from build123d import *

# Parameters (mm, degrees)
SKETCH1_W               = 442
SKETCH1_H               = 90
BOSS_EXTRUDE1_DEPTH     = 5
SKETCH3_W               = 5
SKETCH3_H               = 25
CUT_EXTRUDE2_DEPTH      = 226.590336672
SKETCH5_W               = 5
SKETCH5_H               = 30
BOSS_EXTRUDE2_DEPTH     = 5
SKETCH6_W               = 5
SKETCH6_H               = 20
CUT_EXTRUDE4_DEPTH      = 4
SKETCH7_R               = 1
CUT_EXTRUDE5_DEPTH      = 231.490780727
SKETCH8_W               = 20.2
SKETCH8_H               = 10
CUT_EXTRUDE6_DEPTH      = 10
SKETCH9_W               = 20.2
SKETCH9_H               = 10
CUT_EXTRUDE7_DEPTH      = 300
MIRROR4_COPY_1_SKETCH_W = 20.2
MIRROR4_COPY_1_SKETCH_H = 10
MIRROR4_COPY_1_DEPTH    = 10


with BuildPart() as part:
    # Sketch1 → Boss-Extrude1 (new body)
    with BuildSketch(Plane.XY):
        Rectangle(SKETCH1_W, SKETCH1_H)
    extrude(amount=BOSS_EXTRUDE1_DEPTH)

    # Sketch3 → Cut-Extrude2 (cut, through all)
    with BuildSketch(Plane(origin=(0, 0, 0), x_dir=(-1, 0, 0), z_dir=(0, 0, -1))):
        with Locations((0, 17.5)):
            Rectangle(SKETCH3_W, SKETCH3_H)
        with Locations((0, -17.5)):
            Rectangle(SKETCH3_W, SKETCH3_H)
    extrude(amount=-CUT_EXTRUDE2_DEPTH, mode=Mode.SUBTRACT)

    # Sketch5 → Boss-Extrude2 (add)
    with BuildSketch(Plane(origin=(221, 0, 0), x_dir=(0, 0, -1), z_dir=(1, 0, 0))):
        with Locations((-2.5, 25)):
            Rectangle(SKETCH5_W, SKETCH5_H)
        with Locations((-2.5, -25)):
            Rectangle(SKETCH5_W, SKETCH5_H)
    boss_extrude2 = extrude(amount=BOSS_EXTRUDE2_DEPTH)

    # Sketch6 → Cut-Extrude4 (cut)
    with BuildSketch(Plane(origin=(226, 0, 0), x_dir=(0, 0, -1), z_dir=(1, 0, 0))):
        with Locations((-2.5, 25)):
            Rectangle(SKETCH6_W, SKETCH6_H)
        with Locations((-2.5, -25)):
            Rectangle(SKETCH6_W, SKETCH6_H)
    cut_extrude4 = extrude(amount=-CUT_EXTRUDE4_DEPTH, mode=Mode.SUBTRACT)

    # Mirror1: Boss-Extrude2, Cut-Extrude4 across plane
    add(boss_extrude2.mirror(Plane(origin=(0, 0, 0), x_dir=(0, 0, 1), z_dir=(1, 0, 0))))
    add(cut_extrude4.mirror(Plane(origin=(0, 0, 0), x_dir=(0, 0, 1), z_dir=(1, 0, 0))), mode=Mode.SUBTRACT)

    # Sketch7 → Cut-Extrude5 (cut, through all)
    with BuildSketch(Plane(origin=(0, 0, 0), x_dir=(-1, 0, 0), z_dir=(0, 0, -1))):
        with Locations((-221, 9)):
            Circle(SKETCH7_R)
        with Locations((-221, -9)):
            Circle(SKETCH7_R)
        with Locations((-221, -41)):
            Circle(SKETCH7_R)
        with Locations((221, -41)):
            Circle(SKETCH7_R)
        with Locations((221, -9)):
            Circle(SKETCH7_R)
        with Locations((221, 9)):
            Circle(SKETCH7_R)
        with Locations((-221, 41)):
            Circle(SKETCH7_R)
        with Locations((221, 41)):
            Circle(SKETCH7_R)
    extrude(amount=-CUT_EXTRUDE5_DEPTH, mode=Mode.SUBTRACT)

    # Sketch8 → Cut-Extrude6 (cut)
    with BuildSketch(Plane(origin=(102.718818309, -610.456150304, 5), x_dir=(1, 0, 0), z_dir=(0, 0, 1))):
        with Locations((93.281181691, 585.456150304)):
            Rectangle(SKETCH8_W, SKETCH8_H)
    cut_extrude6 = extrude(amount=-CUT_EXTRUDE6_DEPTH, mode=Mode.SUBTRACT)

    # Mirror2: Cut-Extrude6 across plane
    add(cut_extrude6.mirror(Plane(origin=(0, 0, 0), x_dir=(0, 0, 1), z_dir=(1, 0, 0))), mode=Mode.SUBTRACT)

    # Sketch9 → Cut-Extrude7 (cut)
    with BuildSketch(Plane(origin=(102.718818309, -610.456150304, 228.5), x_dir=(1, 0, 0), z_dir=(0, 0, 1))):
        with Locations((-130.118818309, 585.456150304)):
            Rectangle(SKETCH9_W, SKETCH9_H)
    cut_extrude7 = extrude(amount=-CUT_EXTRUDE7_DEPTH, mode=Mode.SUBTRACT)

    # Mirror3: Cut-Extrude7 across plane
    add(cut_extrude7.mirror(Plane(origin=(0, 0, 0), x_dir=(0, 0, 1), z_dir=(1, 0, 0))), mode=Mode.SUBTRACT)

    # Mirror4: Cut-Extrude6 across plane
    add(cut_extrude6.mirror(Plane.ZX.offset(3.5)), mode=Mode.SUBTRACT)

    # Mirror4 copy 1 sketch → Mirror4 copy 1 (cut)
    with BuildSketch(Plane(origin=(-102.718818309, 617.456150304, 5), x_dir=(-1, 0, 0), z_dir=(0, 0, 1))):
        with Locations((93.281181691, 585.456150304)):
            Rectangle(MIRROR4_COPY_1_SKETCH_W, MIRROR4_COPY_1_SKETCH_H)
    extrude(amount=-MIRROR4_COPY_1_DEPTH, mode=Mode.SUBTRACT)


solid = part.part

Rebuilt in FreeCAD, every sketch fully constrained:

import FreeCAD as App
import Part
import Sketcher

V = App.Vector


def add_polygon(sketch, points):
    """Adds a closed chain of lines whose ends are joined by coincident constraints."""
    first, n = sketch.GeometryCount, len(points)
    for a, b in zip(points, points[1:] + points[:1]):
        sketch.addGeometry(Part.LineSegment(App.Vector(*a, 0), App.Vector(*b, 0)), False)
    for i in range(n):
        sketch.addConstraint(Sketcher.Constraint("Coincident", first + i, 2, first + (i + 1) % n, 1))

doc = App.newDocument("Part")
body = doc.addObject("PartDesign::Body", "Body")

# Sketch on XY plane
sketch1 = body.newObject("Sketcher::SketchObject", "Sketch")
sketch1.AttachmentSupport = (doc.getObject("XY_Plane"), [""])
sketch1.MapMode = "FlatFace"
add_polygon(sketch1, [(-221, 45), (-221, -45), (221, -45), (221, 45)])  # lines 0-3
sketch1.addConstraint([
    Sketcher.Constraint("Vertical", 0),
    Sketcher.Constraint("Horizontal", 1),
    Sketcher.Constraint("Vertical", 2),
    Sketcher.Constraint("Horizontal", 3),
    Sketcher.Constraint("Symmetric", 0, 2, 2, 2, -1, 1),
    Sketcher.Constraint("DistanceX", 1, 1, 1, 2, 442.0),
    Sketcher.Constraint("DistanceY", 0, 2, 0, 1, 90.0),
])
pad1 = body.newObject("PartDesign::Pad", "Pad")
pad1.Profile = sketch1
pad1.Length = 5

# Sketch on XY plane
sketch2 = body.newObject("Sketcher::SketchObject", "Sketch001")
sketch2.AttachmentSupport = (doc.getObject("XY_Plane"), [""])
sketch2.MapMode = "FlatFace"
add_polygon(sketch2, [(2, 30), (2, 5), (-2, 5), (-2, 30)])  # lines 0-3
add_polygon(sketch2, [(2, -5), (2, -30), (-2, -30), (-2, -5)])  # lines 4-7
sketch2.addConstraint([
    Sketcher.Constraint("Vertical", 0),
    Sketcher.Constraint("Horizontal", 1),
    Sketcher.Constraint("Vertical", 2),
    Sketcher.Constraint("Horizontal", 3),
    Sketcher.Constraint("Vertical", 4),
    Sketcher.Constraint("Horizontal", 5),
    Sketcher.Constraint("Vertical", 6),
    Sketcher.Constraint("Horizontal", 7),
    Sketcher.Constraint("Symmetric", 2, 2, 4, 2, -1, 1),
    Sketcher.Constraint("Symmetric", 0, 2, 6, 2, -1, 1),
    Sketcher.Constraint("Vertical", 3, 2, 4, 2),
    Sketcher.Constraint("DistanceX", 1, 2, 1, 1, 5.0),
    Sketcher.Constraint("DistanceY", 0, 2, 0, 1, 25.0),
    Sketcher.Constraint("DistanceY", -1, 1, 0, 2, 5.0),
])
pocket1 = body.newObject("PartDesign::Pocket", "Pocket")
pocket1.Profile = sketch2
pocket1.Type = "ThroughAll"
pocket1.Reversed = True

# Sketch on YZ plane
sketch3 = body.newObject("Sketcher::SketchObject", "Sketch002")
sketch3.AttachmentSupport = (doc.getObject("YZ_Plane"), [""])
sketch3.MapMode = "FlatFace"
sketch3.AttachmentOffset = App.Placement(V(0, 0, 221), App.Rotation())
add_polygon(sketch3, [(40, 5), (10, 5), (10, 0), (40, 0)])  # lines 0-3
add_polygon(sketch3, [(-10, 5), (-40, 5), (-40, 0), (-10, 0)])  # lines 4-7
sketch3.addConstraint([
    Sketcher.Constraint("Horizontal", 0),
    Sketcher.Constraint("Vertical", 1),
    Sketcher.Constraint("Horizontal", 2),
    Sketcher.Constraint("Vertical", 3),
    Sketcher.Constraint("Horizontal", 4),
    Sketcher.Constraint("Vertical", 5),
    Sketcher.Constraint("Horizontal", 6),
    Sketcher.Constraint("Vertical", 7),
    Sketcher.Constraint("Symmetric", 2, 2, 5, 2, -1, 1),
    Sketcher.Constraint("Symmetric", 1, 2, 6, 2, -2),
    Sketcher.Constraint("Horizontal", 3, 2, 4, 2),
    Sketcher.Constraint("DistanceX", 0, 2, 0, 1, 30.0),
    Sketcher.Constraint("DistanceY", 1, 2, 1, 1, 5.0),
    Sketcher.Constraint("DistanceX", -1, 1, 0, 2, 10.0),
])
pad2 = body.newObject("PartDesign::Pad", "Pad001")
pad2.Profile = sketch3
pad2.Length = 5

# Sketch on YZ plane
sketch4 = body.newObject("Sketcher::SketchObject", "Sketch003")
sketch4.AttachmentSupport = (doc.getObject("YZ_Plane"), [""])
sketch4.MapMode = "FlatFace"
sketch4.AttachmentOffset = App.Placement(V(0, 0, 226), App.Rotation())
add_polygon(sketch4, [(35, 5), (15, 5), (15, 0), (35, 0)])  # lines 0-3
add_polygon(sketch4, [(-15, 5), (-35, 5), (-35, 0), (-15, 0)])  # lines 4-7
sketch4.addConstraint([
    Sketcher.Constraint("Horizontal", 0),
    Sketcher.Constraint("Vertical", 1),
    Sketcher.Constraint("Horizontal", 2),
    Sketcher.Constraint("Vertical", 3),
    Sketcher.Constraint("Horizontal", 4),
    Sketcher.Constraint("Vertical", 5),
    Sketcher.Constraint("Horizontal", 6),
    Sketcher.Constraint("Vertical", 7),
    Sketcher.Constraint("Symmetric", 2, 2, 5, 2, -1, 1),
    Sketcher.Constraint("Symmetric", 1, 2, 6, 2, -2),
    Sketcher.Constraint("Horizontal", 3, 2, 4, 2),
    Sketcher.Constraint("DistanceX", 0, 2, 0, 1, 20.0),
    Sketcher.Constraint("DistanceY", 1, 2, 1, 1, 5.0),
    Sketcher.Constraint("DistanceX", -1, 1, 0, 2, 15.0),
])
pocket2 = body.newObject("PartDesign::Pocket", "Pocket001")
pocket2.Profile = sketch4
pocket2.Length = 4
doc.recompute()

mirrored = body.newObject("PartDesign::Mirrored", "Mirrored")
mirrored.Originals = [pad2, pocket2]
mirrored.MirrorPlane = (doc.getObject("YZ_Plane"), [""])
body.Tip = mirrored

# Sketch on XY plane
sketch5 = body.newObject("Sketcher::SketchObject", "Sketch004")
sketch5.AttachmentSupport = (doc.getObject("XY_Plane"), [""])
sketch5.MapMode = "FlatFace"
sketch5.addGeometry([
    Part.Circle(V(221, 9, 0), V(0, 0, 1), 1),  # 0
    Part.Circle(V(221, -9, 0), V(0, 0, 1), 1),  # 1
    Part.Circle(V(221, -41, 0), V(0, 0, 1), 1),  # 2
    Part.Circle(V(-221, -41, 0), V(0, 0, 1), 1),  # 3
    Part.Circle(V(-221, -9, 0), V(0, 0, 1), 1),  # 4
    Part.Circle(V(-221, 9, 0), V(0, 0, 1), 1),  # 5
    Part.Circle(V(221, 41, 0), V(0, 0, 1), 1),  # 6
    Part.Circle(V(-221, 41, 0), V(0, 0, 1), 1),  # 7
], False)
sketch5.addConstraint([
    Sketcher.Constraint("Equal", 0, 1),
    Sketcher.Constraint("Equal", 1, 2),
    Sketcher.Constraint("Equal", 2, 3),
    Sketcher.Constraint("Equal", 3, 4),
    Sketcher.Constraint("Equal", 4, 5),
    Sketcher.Constraint("Equal", 5, 6),
    Sketcher.Constraint("Equal", 6, 7),
    Sketcher.Constraint("Symmetric", 0, 3, 4, 3, -1, 1),
    Sketcher.Constraint("Symmetric", 1, 3, 5, 3, -1, 1),
    Sketcher.Constraint("Symmetric", 3, 3, 6, 3, -1, 1),
    Sketcher.Constraint("Symmetric", 2, 3, 7, 3, -1, 1),
    Sketcher.Constraint("Symmetric", 2, 3, 3, 3, -2),
    Sketcher.Constraint("Symmetric", 1, 3, 4, 3, -2),
    Sketcher.Constraint("Vertical", 1, 3, 2, 3),
    Sketcher.Constraint("Diameter", 0, 2.0),
    Sketcher.Constraint("DistanceX", -1, 1, 0, 3, 221.0),
    Sketcher.Constraint("DistanceY", -1, 1, 0, 3, 9.0),
    Sketcher.Constraint("DistanceY", 2, 3, -1, 1, 41.0),
])
pocket3 = body.newObject("PartDesign::Pocket", "Pocket002")
pocket3.Profile = sketch5
pocket3.Type = "ThroughAll"
pocket3.Reversed = True

# Sketch on XY plane
sketch6 = body.newObject("Sketcher::SketchObject", "Sketch005")
sketch6.AttachmentSupport = (doc.getObject("XY_Plane"), [""])
sketch6.MapMode = "FlatFace"
sketch6.AttachmentOffset = App.Placement(V(0, 0, 5), App.Rotation())
add_polygon(sketch6, [(186, -20), (186, -30), (206, -30), (206, -20)])  # lines 0-3
sketch6.addConstraint([
    Sketcher.Constraint("Vertical", 0),
    Sketcher.Constraint("Horizontal", 1),
    Sketcher.Constraint("Vertical", 2),
    Sketcher.Constraint("Horizontal", 3),
    Sketcher.Constraint("DistanceY", 0, 2, 0, 1, 10.0),
    Sketcher.Constraint("DistanceX", 1, 1, 1, 2, 20.2),
    Sketcher.Constraint("DistanceY", 0, 2, -1, 1, 30.0),
    Sketcher.Constraint("DistanceX", -1, 1, 0, 2, 185.9),
])
pocket4 = body.newObject("PartDesign::Pocket", "Pocket003")
pocket4.Profile = sketch6
pocket4.Length = 10
doc.recompute()

mirrored2 = body.newObject("PartDesign::Mirrored", "Mirrored001")
mirrored2.Originals = [pocket4]
mirrored2.MirrorPlane = (doc.getObject("YZ_Plane"), [""])
body.Tip = mirrored2

# Sketch on XY plane
sketch7 = body.newObject("Sketcher::SketchObject", "Sketch006")
sketch7.AttachmentSupport = (doc.getObject("XY_Plane"), [""])
sketch7.MapMode = "FlatFace"
sketch7.AttachmentOffset = App.Placement(V(0, 0, 228.5), App.Rotation())
add_polygon(sketch7, [(-38, -20), (-38, -30), (-17, -30), (-17, -20)])  # lines 0-3
sketch7.addConstraint([
    Sketcher.Constraint("Vertical", 0),
    Sketcher.Constraint("Horizontal", 1),
    Sketcher.Constraint("Vertical", 2),
    Sketcher.Constraint("Horizontal", 3),
    Sketcher.Constraint("DistanceY", 0, 2, 0, 1, 10.0),
    Sketcher.Constraint("DistanceX", 1, 1, 1, 2, 20.2),
    Sketcher.Constraint("DistanceY", 0, 2, -1, 1, 30.0),
    Sketcher.Constraint("DistanceX", 0, 2, -1, 1, 37.5),
])
pocket5 = body.newObject("PartDesign::Pocket", "Pocket004")
pocket5.Profile = sketch7
pocket5.Length = 300
doc.recompute()

mirrored3 = body.newObject("PartDesign::Mirrored", "Mirrored002")
mirrored3.Originals = [pocket5]
mirrored3.MirrorPlane = (doc.getObject("YZ_Plane"), [""])
body.Tip = mirrored3
doc.recompute()

datumplane = body.newObject("PartDesign::Plane", "DatumPlane")
datumplane.AttachmentSupport = (doc.getObject("XZ_Plane"), [""])
datumplane.MapMode = "FlatFace"
datumplane.AttachmentOffset = App.Placement(V(0, 0, -3.5), App.Rotation())
mirrored4 = body.newObject("PartDesign::Mirrored", "Mirrored003")
mirrored4.Originals = [pocket4]
mirrored4.MirrorPlane = (datumplane, [""])
body.Tip = mirrored4

# Sketch on XY plane
sketch8 = body.newObject("Sketcher::SketchObject", "Sketch007")
sketch8.AttachmentSupport = (doc.getObject("XY_Plane"), [""])
sketch8.MapMode = "FlatFace"
sketch8.AttachmentOffset = App.Placement(V(0, 0, 5), App.Rotation())
add_polygon(sketch8, [(-186, 27), (-186, 37), (-206, 37), (-206, 27)])  # lines 0-3
sketch8.addConstraint([
    Sketcher.Constraint("Vertical", 0),
    Sketcher.Constraint("Horizontal", 1),
    Sketcher.Constraint("Vertical", 2),
    Sketcher.Constraint("Horizontal", 3),
    Sketcher.Constraint("DistanceY", 0, 1, 0, 2, 10.0),
    Sketcher.Constraint("DistanceX", 1, 2, 1, 1, 20.2),
    Sketcher.Constraint("DistanceY", -1, 1, 0, 2, 37.0),
    Sketcher.Constraint("DistanceX", 0, 2, -1, 1, 185.9),
])
pocket6 = body.newObject("PartDesign::Pocket", "Pocket005")
pocket6.Profile = sketch8
pocket6.Length = 10

doc.recompute()
